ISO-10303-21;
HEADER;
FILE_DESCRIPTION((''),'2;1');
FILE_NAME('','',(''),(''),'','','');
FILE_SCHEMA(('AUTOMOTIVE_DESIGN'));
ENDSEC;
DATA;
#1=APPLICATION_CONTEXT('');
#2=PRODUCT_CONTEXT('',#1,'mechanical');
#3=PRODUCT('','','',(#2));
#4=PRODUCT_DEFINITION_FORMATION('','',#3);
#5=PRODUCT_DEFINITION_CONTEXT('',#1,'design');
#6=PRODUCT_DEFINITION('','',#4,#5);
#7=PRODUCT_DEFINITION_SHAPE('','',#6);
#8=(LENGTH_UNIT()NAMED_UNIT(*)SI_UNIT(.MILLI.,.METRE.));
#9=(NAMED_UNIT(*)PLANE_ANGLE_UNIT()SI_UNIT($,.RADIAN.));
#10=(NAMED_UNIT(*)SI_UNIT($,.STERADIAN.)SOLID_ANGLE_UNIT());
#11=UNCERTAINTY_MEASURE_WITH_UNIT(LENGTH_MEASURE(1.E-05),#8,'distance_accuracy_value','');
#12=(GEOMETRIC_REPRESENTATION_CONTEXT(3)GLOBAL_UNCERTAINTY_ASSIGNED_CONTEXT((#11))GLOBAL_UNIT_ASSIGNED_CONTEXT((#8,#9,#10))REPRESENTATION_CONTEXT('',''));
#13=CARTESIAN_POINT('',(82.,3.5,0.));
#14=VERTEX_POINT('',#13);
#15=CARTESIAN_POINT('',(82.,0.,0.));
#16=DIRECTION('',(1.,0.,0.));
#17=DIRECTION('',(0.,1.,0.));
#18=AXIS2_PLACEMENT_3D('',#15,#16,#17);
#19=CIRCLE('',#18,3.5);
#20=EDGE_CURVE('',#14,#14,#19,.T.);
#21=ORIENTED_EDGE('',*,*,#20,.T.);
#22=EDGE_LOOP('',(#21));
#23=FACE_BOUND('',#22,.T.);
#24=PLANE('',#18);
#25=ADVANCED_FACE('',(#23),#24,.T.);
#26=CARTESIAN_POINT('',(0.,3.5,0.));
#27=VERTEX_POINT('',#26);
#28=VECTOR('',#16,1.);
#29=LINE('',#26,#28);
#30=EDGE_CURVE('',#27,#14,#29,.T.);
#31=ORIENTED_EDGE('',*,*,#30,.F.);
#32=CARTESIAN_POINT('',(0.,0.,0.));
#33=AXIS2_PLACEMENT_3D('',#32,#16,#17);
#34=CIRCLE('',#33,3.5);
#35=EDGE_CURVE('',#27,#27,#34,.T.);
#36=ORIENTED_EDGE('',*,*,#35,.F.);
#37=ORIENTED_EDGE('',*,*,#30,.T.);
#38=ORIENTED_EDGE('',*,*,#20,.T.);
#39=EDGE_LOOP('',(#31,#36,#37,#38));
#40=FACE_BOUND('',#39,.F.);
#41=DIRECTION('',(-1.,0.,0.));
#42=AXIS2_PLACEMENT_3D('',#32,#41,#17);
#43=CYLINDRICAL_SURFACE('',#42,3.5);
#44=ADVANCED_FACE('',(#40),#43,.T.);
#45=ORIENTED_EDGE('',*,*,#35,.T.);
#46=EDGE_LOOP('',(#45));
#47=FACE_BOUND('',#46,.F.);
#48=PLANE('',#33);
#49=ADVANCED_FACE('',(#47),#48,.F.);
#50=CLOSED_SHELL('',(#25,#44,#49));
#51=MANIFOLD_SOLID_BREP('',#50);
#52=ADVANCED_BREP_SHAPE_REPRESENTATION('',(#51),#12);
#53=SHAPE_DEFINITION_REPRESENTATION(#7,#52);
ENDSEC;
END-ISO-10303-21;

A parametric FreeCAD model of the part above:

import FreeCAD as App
import Part
import Sketcher

V = App.Vector
Q = App.Units.Quantity

doc = App.newDocument("Part")
body = doc.addObject("PartDesign::Body", "Body")

# Sketch on YZ plane
sketch1 = body.newObject("Sketcher::SketchObject", "Sketch")
sketch1.AttachmentSupport = (doc.getObject("YZ_Plane"), [""])
sketch1.MapMode = "FlatFace"
sketch1.addGeometry(Part.Circle(V(0, 0, 0), V(0, 0, 1), 3.5), False)
sketch1.addConstraint([
    Sketcher.Constraint("Coincident", 0, 3, -1, 1),
    Sketcher.Constraint("Diameter", 0, Q("7 mm")),
])
pad1 = body.newObject("PartDesign::Pad", "Pad")
pad1.Profile = sketch1
pad1.Length = 82

doc.recompute()
